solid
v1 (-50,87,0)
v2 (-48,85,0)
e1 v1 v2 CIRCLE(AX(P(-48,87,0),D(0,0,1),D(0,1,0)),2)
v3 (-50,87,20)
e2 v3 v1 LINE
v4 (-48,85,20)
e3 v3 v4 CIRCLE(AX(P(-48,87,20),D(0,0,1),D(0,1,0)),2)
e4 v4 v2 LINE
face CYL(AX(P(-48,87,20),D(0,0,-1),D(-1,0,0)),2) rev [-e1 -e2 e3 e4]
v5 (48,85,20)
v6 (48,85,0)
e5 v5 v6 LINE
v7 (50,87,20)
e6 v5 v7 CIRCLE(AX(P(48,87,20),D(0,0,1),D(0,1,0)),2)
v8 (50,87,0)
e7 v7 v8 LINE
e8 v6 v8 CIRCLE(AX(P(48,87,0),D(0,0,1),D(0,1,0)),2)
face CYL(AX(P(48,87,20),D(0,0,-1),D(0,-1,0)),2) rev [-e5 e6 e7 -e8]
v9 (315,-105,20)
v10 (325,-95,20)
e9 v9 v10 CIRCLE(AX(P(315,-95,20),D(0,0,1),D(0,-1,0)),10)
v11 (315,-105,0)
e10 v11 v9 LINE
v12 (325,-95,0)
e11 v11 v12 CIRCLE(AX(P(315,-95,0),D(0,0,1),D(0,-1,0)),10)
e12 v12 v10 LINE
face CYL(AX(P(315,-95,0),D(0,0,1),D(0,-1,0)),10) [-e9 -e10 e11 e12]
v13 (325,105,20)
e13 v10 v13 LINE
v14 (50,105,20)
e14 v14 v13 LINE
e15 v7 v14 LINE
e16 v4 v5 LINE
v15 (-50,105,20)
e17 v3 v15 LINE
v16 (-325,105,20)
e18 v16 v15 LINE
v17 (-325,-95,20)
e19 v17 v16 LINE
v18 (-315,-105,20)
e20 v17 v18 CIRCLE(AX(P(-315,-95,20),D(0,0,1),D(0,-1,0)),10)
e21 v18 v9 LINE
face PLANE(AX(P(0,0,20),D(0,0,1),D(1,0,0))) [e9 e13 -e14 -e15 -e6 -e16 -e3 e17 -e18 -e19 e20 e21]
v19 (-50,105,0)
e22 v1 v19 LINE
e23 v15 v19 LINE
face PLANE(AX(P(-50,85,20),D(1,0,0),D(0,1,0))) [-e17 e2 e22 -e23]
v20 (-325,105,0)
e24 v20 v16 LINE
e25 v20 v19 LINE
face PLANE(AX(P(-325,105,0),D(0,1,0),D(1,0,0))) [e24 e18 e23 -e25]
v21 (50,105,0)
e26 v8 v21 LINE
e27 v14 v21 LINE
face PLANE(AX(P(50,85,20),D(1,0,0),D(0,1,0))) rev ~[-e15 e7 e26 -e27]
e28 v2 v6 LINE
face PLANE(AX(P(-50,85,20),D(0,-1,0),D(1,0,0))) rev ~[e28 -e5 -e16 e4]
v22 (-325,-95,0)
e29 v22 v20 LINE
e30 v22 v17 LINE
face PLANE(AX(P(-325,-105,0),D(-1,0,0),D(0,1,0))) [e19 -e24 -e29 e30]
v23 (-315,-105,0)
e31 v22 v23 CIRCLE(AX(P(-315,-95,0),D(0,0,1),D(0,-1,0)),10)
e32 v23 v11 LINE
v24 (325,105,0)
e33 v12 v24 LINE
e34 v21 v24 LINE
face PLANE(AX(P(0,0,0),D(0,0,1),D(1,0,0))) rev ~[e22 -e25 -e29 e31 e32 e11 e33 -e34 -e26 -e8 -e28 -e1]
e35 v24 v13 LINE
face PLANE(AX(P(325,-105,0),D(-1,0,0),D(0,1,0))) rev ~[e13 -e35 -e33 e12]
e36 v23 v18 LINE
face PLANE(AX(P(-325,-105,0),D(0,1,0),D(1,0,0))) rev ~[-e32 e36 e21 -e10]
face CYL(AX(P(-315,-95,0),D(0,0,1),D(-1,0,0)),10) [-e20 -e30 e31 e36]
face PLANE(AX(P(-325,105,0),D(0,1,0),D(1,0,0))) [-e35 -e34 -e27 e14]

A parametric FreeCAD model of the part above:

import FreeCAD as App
import Part
import Sketcher
from FreeCAD import Vector


def edges_at(feature, points):
    """Names of the edges that pass closest to the given points."""
    edges = feature.Shape.Edges
    near = lambda p: min(range(len(edges)), key=lambda i: edges[i].distToShape(Part.Vertex(*p))[0])
    return sorted({f"Edge{near(p) + 1}" for p in points})


def add_polygon(sketch, points):
    """Adds a closed chain of lines whose ends are joined by coincident constraints."""
    first, n = sketch.GeometryCount, len(points)
    for a, b in zip(points, points[1:] + points[:1]):
        sketch.addGeometry(Part.LineSegment(App.Vector(*a, 0), App.Vector(*b, 0)), False)
    for i in range(n):
        sketch.addConstraint(Sketcher.Constraint("Coincident", first + i, 2, first + (i + 1) % n, 1))

doc = App.newDocument("Part")
params = doc.addObject("Spreadsheet::Sheet", "Params")
for row, (alias, value) in enumerate([
    ("sketch1_width", "650 mm"),
    ("sketch1_height", "210 mm"),
    ("pad1_length", "20 mm"),
    ("sketch2_width", "100 mm"),
    ("sketch2_height", "20 mm"),
    ("fillet_radius", "10 mm"),
    ("fillet2_radius", "2 mm"),
], start=1):
    params.set(f"A{row}", alias)
    params.set(f"B{row}", "=" + value)
    params.setAlias(f"B{row}", alias)

body = doc.addObject("PartDesign::Body", "Body")

sketch1 = body.newObject("Sketcher::SketchObject", "Sketch")
sketch1.AttachmentSupport = (doc.getObject("XY_Plane"), [""])
sketch1.MapMode = "FlatFace"
add_polygon(sketch1, [(-325, 105), (-325, -105), (325, -105), (325, 105)])
sketch1.addConstraint([
    Sketcher.Constraint("Vertical", 0),
    Sketcher.Constraint("Horizontal", 1),
    Sketcher.Constraint("Vertical", 2),
    Sketcher.Constraint("Horizontal", 3),
    Sketcher.Constraint("Symmetric", 0, 2, 2, 2, -1, 1),
    Sketcher.Constraint("DistanceX", 1, 1, 1, 2, 650.0),
    Sketcher.Constraint("DistanceY", 0, 2, 0, 1, 210.0),
])
sketch1.setExpression("Constraints[9]", "Params.sketch1_width")
sketch1.setExpression("Constraints[10]", "Params.sketch1_height")
pad1 = body.newObject("PartDesign::Pad", "Pad")
pad1.Profile = sketch1
pad1.setExpression("Length", "Params.pad1_length")

sketch2 = body.newObject("Sketcher::SketchObject", "Sketch001")
sketch2.AttachmentSupport = (doc.getObject("XY_Plane"), [""])
sketch2.MapMode = "FlatFace"
sketch2.AttachmentOffset = App.Placement(Vector(0, 0, 20), App.Rotation())
add_polygon(sketch2, [(-50, 105), (-50, 85), (50, 85), (50, 105)])
sketch2.addConstraint([
    Sketcher.Constraint("Vertical", 0),
    Sketcher.Constraint("Horizontal", 1),
    Sketcher.Constraint("Vertical", 2),
    Sketcher.Constraint("Horizontal", 3),
    Sketcher.Constraint("DistanceX", 1, 1, 1, 2, 100.0),
    Sketcher.Constraint("DistanceY", 0, 2, 0, 1, 20.0),
    Sketcher.Constraint("DistanceX", 0, 2, -1, 1, 50.0),
    Sketcher.Constraint("DistanceY", -1, 1, 0, 2, 85.0),
])
sketch2.setExpression("Constraints[8]", "Params.sketch2_width")
sketch2.setExpression("Constraints[9]", "Params.sketch2_height")
pocket1 = body.newObject("PartDesign::Pocket", "Pocket")
pocket1.Profile = sketch2
pocket1.Type = "ThroughAll"
doc.recompute()

fillet = body.newObject("PartDesign::Fillet", "Fillet")
fillet.Base = (pocket1, edges_at(pocket1, [(-325, -105, 10), (325, -105, 10)]))
fillet.setExpression("Radius", "Params.fillet_radius")
doc.recompute()

fillet2 = body.newObject("PartDesign::Fillet", "Fillet001")
fillet2.Base = (fillet, edges_at(fillet, [(-50, 85, 10), (50, 85, 10)]))
fillet2.setExpression("Radius", "Params.fillet2_radius")

doc.recompute()
